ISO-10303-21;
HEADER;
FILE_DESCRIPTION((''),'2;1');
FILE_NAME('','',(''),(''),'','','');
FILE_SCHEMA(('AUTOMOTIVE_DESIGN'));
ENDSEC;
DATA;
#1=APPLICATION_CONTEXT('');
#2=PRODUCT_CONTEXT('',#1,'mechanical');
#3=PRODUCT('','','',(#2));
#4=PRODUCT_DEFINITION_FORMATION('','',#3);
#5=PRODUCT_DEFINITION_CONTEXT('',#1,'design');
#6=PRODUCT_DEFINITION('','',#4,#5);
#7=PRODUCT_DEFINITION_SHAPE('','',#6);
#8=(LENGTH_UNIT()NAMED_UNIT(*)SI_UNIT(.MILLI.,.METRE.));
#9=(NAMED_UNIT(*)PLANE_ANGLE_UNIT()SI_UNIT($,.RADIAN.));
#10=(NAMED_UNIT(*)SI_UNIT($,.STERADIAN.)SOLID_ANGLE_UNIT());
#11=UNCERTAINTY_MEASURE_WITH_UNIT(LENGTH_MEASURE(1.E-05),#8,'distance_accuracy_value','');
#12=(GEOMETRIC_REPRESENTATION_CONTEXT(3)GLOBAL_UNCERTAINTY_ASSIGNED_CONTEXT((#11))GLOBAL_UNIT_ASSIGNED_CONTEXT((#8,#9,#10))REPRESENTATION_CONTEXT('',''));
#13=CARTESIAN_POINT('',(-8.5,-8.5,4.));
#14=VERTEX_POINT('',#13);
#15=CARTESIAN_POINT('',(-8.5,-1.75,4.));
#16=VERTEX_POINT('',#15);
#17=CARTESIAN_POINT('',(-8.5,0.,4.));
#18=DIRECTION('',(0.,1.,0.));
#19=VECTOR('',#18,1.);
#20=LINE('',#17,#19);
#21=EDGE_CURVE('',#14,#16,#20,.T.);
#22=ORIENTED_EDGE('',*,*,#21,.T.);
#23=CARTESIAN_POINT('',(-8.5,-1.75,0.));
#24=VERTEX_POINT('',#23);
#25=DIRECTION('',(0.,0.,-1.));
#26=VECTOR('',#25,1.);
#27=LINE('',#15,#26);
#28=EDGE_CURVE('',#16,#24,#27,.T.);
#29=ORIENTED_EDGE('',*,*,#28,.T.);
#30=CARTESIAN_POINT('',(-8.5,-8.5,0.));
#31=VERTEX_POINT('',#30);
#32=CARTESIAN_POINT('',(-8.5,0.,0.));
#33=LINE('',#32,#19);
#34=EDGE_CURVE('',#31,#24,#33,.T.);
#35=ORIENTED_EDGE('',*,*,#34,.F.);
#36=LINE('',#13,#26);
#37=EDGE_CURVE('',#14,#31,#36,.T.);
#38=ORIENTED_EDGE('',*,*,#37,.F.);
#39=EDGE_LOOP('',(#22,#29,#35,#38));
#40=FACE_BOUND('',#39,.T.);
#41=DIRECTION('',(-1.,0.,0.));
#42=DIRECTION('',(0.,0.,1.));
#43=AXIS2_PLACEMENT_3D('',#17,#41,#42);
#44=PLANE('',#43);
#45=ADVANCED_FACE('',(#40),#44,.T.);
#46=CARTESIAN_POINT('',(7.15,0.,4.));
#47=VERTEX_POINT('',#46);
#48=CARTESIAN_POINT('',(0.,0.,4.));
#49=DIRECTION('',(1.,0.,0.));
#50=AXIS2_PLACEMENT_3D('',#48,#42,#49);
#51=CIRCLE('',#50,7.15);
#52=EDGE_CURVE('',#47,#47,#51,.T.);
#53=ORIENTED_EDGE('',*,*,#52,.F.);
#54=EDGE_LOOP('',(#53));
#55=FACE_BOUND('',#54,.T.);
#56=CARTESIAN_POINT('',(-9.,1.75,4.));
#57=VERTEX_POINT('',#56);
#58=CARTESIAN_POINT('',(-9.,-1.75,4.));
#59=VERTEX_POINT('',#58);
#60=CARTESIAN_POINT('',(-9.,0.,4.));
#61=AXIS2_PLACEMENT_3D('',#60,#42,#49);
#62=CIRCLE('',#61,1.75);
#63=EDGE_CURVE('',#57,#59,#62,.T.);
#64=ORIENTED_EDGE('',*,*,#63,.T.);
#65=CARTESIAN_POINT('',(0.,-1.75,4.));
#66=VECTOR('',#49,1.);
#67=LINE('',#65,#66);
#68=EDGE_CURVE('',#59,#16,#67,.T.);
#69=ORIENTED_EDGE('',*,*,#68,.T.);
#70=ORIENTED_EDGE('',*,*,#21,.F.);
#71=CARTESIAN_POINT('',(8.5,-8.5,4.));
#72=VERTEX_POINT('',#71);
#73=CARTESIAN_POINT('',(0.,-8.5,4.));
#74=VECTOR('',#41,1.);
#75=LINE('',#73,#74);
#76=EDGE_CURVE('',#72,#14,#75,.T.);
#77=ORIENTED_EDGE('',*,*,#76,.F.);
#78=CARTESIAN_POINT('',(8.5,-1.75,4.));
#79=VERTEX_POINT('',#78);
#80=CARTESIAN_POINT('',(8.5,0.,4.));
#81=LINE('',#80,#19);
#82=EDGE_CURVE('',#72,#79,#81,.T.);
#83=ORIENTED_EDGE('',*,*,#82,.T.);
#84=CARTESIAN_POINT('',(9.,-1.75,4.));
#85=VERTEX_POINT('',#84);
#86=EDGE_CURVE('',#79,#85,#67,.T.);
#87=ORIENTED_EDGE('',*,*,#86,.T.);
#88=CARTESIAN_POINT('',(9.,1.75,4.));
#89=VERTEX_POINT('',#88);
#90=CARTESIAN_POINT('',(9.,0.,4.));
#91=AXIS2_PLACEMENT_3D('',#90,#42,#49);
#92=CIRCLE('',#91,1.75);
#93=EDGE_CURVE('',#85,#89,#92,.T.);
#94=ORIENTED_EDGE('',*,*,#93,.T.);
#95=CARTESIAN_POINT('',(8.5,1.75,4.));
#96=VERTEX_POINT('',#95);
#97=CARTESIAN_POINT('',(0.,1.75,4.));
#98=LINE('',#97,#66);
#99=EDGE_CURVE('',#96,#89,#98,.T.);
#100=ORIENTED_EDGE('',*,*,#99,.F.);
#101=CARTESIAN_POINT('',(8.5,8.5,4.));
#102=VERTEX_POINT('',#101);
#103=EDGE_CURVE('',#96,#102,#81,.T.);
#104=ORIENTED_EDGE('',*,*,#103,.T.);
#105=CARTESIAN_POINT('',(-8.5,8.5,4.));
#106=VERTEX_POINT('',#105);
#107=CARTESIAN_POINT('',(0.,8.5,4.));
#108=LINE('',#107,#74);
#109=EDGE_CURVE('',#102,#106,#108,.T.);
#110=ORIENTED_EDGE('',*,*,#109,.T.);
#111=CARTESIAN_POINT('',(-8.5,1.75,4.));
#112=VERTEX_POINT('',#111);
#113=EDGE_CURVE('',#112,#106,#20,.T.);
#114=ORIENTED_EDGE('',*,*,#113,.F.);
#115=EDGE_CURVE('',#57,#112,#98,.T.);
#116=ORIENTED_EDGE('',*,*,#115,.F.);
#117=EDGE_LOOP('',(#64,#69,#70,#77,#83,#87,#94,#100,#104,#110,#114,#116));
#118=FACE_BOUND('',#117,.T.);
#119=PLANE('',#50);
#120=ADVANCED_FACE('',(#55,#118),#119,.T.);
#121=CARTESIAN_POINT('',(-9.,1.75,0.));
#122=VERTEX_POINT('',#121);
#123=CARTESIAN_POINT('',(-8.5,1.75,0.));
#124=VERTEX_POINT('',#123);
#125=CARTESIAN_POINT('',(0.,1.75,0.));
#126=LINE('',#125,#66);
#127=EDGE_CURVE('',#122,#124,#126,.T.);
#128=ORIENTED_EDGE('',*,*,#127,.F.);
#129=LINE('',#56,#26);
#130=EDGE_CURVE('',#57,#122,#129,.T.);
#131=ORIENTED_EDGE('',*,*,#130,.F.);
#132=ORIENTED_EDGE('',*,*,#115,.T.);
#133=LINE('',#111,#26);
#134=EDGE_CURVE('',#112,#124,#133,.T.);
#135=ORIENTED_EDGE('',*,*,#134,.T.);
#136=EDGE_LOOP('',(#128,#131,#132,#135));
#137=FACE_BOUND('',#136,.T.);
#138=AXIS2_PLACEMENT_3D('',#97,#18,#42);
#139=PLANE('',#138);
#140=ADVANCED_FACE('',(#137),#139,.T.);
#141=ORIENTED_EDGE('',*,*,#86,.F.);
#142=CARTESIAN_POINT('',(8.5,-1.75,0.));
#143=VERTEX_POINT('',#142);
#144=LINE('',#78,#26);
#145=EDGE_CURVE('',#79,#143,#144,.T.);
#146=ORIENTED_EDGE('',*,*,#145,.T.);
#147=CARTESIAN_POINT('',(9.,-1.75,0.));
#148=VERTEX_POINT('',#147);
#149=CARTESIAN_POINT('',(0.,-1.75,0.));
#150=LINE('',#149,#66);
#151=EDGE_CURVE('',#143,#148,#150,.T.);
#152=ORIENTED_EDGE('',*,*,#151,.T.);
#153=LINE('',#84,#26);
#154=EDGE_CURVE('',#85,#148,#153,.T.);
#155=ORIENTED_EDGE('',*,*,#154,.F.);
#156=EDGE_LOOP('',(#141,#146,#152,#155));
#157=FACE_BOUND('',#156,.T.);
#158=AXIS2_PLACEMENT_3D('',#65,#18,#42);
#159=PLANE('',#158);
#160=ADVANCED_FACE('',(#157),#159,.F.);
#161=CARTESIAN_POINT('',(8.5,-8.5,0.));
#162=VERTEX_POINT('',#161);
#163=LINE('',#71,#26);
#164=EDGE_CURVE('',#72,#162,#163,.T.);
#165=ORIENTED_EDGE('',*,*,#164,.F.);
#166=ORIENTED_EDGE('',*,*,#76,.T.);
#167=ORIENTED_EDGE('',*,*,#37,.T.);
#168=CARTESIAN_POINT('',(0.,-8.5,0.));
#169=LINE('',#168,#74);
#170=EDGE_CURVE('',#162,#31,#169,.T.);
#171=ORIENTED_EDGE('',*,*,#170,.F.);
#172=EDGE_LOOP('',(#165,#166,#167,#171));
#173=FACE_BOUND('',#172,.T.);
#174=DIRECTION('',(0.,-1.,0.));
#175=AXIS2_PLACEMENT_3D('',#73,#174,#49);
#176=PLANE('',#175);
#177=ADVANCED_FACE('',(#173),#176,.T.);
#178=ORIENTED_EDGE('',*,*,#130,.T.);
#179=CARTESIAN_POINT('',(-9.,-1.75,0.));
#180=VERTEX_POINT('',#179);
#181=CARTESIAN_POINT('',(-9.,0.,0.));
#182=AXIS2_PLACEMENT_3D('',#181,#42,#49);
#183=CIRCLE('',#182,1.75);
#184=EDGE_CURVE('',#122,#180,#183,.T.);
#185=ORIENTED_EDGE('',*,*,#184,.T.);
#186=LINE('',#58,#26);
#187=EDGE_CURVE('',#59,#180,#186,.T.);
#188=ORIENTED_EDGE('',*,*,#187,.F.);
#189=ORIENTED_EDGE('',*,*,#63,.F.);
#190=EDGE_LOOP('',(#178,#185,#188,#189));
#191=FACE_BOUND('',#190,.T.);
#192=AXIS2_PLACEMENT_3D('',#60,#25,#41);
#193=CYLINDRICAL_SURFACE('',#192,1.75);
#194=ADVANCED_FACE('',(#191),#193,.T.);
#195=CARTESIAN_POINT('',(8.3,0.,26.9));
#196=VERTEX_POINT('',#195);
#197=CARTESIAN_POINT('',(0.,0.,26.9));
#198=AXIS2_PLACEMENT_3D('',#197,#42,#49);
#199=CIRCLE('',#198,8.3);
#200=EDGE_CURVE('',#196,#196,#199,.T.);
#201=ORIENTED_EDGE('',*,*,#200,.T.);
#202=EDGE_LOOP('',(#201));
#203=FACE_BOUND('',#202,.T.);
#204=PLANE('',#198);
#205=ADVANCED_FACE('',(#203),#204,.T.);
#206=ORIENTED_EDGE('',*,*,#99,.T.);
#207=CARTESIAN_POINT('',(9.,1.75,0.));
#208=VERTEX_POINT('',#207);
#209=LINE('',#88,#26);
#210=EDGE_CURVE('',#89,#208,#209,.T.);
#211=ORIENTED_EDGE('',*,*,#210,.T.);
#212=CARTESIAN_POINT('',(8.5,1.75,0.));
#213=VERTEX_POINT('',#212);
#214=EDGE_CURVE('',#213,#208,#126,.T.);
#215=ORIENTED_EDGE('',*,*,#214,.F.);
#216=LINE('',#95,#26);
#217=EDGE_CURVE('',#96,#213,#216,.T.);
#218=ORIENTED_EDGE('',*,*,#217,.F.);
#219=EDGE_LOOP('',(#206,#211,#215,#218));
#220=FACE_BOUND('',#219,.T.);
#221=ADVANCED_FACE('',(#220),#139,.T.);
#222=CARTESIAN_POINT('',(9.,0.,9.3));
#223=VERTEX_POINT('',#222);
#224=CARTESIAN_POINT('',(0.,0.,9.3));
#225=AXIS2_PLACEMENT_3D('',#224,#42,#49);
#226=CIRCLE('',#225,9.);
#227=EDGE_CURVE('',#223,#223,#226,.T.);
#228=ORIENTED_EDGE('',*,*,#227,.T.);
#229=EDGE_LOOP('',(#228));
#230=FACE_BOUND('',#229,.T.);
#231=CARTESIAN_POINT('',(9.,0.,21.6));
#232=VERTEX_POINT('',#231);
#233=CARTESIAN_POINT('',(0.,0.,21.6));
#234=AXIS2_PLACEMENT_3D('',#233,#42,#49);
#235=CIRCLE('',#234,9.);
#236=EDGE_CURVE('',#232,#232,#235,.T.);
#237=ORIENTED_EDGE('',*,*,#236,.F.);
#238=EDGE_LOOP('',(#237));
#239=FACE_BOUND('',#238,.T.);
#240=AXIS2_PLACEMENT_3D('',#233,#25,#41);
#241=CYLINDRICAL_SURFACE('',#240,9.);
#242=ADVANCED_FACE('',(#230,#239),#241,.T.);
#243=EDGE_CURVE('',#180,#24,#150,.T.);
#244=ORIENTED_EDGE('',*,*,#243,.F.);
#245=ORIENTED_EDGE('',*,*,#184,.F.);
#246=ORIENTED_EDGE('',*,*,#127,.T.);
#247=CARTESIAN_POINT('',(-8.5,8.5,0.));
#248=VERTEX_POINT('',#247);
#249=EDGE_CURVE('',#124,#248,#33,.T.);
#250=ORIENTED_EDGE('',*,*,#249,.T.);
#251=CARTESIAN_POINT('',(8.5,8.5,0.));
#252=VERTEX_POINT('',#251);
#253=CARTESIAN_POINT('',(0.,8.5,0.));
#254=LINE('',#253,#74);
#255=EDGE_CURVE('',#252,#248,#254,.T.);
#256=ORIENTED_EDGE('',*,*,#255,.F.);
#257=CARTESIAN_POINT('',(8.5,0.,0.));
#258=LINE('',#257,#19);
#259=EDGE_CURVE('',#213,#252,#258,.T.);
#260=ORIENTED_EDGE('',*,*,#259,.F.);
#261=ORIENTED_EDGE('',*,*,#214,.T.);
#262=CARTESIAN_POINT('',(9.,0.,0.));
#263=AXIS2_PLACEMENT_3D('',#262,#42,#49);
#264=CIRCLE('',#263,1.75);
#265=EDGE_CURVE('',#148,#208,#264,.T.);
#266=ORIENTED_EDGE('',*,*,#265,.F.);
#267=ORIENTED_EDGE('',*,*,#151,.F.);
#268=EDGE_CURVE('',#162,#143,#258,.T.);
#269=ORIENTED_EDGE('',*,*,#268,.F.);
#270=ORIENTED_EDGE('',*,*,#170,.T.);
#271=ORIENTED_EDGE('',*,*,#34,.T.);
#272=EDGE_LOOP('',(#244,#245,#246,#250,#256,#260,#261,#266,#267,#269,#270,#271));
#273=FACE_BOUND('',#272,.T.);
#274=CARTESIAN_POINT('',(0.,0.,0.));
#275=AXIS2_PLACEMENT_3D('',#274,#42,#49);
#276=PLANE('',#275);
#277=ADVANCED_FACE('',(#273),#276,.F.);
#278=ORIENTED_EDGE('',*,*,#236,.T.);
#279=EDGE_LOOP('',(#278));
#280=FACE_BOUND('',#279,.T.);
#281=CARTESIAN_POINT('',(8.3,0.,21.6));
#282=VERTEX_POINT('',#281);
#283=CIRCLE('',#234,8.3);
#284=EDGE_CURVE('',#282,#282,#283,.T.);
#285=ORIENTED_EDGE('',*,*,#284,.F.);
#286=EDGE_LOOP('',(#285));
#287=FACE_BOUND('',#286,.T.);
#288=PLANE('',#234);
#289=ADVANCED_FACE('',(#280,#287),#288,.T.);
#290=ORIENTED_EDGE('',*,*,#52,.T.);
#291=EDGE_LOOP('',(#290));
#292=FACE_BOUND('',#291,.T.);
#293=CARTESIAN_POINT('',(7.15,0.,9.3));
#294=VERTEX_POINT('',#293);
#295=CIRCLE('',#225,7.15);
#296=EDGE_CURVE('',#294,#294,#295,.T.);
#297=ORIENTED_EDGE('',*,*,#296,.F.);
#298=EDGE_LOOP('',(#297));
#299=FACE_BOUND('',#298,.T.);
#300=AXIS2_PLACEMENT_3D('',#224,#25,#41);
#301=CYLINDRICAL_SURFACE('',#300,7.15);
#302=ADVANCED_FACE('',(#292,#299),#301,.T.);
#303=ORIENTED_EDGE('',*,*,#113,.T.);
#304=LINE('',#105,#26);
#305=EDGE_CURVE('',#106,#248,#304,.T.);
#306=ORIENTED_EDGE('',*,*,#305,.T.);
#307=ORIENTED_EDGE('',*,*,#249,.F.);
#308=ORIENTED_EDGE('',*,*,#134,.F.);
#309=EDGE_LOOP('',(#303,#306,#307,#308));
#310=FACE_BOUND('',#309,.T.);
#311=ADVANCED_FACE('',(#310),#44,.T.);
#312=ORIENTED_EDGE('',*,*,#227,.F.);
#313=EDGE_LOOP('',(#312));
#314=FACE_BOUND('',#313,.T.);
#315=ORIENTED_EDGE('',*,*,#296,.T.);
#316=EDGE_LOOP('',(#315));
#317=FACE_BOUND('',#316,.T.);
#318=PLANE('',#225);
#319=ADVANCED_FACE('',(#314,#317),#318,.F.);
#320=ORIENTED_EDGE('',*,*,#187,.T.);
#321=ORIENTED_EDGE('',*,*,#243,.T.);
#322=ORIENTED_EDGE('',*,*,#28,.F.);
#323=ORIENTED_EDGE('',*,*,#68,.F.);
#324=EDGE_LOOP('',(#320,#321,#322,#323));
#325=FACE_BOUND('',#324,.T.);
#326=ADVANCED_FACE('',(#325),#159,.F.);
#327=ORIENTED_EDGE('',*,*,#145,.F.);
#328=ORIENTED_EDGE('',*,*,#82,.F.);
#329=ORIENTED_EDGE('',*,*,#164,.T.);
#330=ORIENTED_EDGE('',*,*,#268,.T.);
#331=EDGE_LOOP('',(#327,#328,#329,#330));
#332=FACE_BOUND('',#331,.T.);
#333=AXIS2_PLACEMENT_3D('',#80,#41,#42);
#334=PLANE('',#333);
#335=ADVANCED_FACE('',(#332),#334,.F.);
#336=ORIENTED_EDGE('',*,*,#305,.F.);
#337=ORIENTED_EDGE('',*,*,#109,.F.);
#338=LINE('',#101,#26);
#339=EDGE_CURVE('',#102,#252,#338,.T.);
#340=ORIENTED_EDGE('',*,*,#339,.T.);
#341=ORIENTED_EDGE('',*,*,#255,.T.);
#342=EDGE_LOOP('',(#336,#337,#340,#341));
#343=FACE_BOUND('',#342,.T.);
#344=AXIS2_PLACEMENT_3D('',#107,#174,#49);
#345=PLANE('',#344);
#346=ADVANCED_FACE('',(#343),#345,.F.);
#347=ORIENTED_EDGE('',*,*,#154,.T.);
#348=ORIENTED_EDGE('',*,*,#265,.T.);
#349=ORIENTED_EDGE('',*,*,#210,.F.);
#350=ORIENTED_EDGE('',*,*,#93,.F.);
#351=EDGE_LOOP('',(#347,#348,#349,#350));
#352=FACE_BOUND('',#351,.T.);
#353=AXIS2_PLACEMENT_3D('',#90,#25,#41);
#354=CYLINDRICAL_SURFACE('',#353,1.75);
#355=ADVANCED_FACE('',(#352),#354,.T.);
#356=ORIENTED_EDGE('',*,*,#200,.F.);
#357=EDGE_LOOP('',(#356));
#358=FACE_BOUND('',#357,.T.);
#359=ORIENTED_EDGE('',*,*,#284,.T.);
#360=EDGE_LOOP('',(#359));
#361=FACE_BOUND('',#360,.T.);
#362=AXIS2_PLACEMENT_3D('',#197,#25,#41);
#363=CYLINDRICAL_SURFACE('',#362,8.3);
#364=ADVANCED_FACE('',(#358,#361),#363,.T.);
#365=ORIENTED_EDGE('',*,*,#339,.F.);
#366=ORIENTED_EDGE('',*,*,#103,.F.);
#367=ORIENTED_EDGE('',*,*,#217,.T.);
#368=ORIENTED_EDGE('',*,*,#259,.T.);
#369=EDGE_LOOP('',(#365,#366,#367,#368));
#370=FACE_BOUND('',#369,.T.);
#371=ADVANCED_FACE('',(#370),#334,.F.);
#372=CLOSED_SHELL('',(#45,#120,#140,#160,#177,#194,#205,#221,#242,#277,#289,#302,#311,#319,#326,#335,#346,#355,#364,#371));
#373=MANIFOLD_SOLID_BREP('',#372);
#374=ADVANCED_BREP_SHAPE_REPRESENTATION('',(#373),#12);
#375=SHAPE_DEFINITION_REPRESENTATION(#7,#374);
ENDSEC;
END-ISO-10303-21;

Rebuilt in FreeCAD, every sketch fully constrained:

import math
import FreeCAD as App
import Part
import Sketcher

V = App.Vector
Q = App.Units.Quantity

doc = App.newDocument("Part")
body = doc.addObject("PartDesign::Body", "Body")

# Sketch on XY plane
sketch1 = body.newObject("Sketcher::SketchObject", "Sketch")
sketch1.AttachmentSupport = (doc.getObject("XY_Plane"), [""])
sketch1.MapMode = "FlatFace"
sketch1.addGeometry([
    Part.LineSegment(V(8.5, 8.5, 0), V(-8.5, 8.5, 0)),  # 0
    Part.LineSegment(V(-8.5, 8.5, 0), V(-8.5, 1.8, 0)),  # 1
    Part.LineSegment(V(-8.5, 1.8, 0), V(-9, 1.8, 0)),  # 2
    Part.ArcOfCircle(Part.Circle(V(-9, 0, 0), V(0, 0, 1), 1.8), math.radians(90), math.radians(270)),  # 3
    Part.LineSegment(V(-9, -1.8, 0), V(-8.5, -1.8, 0)),  # 4
    Part.LineSegment(V(-8.5, -1.8, 0), V(-8.5, -8.5, 0)),  # 5
    Part.LineSegment(V(-8.5, -8.5, 0), V(8.5, -8.5, 0)),  # 6
    Part.LineSegment(V(8.5, -8.5, 0), V(8.5, -1.8, 0)),  # 7
    Part.LineSegment(V(8.5, -1.8, 0), V(9, -1.8, 0)),  # 8
    Part.ArcOfCircle(Part.Circle(V(9, 0, 0), V(0, 0, 1), 1.8), math.radians(-90), math.radians(90)),  # 9
    Part.LineSegment(V(9, 1.8, 0), V(8.5, 1.8, 0)),  # 10
    Part.LineSegment(V(8.5, 1.8, 0), V(8.5, 8.5, 0)),  # 11
], False)
sketch1.addConstraint([
    Sketcher.Constraint("Coincident", 0, 2, 1, 1),
    Sketcher.Constraint("Coincident", 1, 2, 2, 1),
    Sketcher.Constraint("Tangent", 2, 2, 3, 1),
    Sketcher.Constraint("Tangent", 3, 2, 4, 1),
    Sketcher.Constraint("Coincident", 4, 2, 5, 1),
    Sketcher.Constraint("Coincident", 5, 2, 6, 1),
    Sketcher.Constraint("Coincident", 6, 2, 7, 1),
    Sketcher.Constraint("Coincident", 7, 2, 8, 1),
    Sketcher.Constraint("Tangent", 8, 2, 9, 1),
    Sketcher.Constraint("Tangent", 9, 2, 10, 1),
    Sketcher.Constraint("Coincident", 10, 2, 11, 1),
    Sketcher.Constraint("Coincident", 11, 2, 0, 1),
    Sketcher.Constraint("Horizontal", 0),
    Sketcher.Constraint("Vertical", 1),
    Sketcher.Constraint("Horizontal", 2),
    Sketcher.Constraint("Horizontal", 4),
    Sketcher.Constraint("Vertical", 5),
    Sketcher.Constraint("Horizontal", 6),
    Sketcher.Constraint("Vertical", 7),
    Sketcher.Constraint("Horizontal", 8),
    Sketcher.Constraint("Horizontal", 10),
    Sketcher.Constraint("Vertical", 11),
    Sketcher.Constraint("Equal", 3, 9),
    Sketcher.Constraint("Symmetric", 3, 3, 9, 3, -1, 1),
    Sketcher.Constraint("Symmetric", 0, 2, 6, 2, -1, 1),
    Sketcher.Constraint("Symmetric", 4, 2, 7, 2, -2),
    Sketcher.Constraint("Vertical", 7, 2, 10, 2),
    Sketcher.Constraint("DistanceX", 0, 2, 0, 1, Q("17 mm")),
    Sketcher.Constraint("Radius", 3, Q("1.75 mm")),
    Sketcher.Constraint("DistanceX", 2, 2, 2, 1, Q("0.5 mm")),
    Sketcher.Constraint("DistanceY", 1, 2, 1, 1, Q("6.75 mm")),
])
pad1 = body.newObject("PartDesign::Pad", "Pad")
pad1.Profile = sketch1
pad1.Length = 4

# Sketch on XY plane
sketch2 = body.newObject("Sketcher::SketchObject", "Sketch001")
sketch2.AttachmentSupport = (doc.getObject("XY_Plane"), [""])
sketch2.MapMode = "FlatFace"
sketch2.AttachmentOffset = App.Placement(V(0, 0, 4), App.Rotation())
sketch2.addGeometry(Part.Circle(V(0, 0, 0), V(0, 0, 1), 7), False)
sketch2.addConstraint([
    Sketcher.Constraint("Coincident", 0, 3, -1, 1),
    Sketcher.Constraint("Diameter", 0, Q("14.3 mm")),
])
pad2 = body.newObject("PartDesign::Pad", "Pad001")
pad2.Profile = sketch2
pad2.Length = 5.3

# Sketch on XY plane
sketch3 = body.newObject("Sketcher::SketchObject", "Sketch002")
sketch3.AttachmentSupport = (doc.getObject("XY_Plane"), [""])
sketch3.MapMode = "FlatFace"
sketch3.AttachmentOffset = App.Placement(V(0, 0, 9.3), App.Rotation())
sketch3.addGeometry(Part.Circle(V(0, 0, 0), V(0, 0, 1), 9), False)
sketch3.addConstraint([
    Sketcher.Constraint("Coincident", 0, 3, -1, 1),
    Sketcher.Constraint("Diameter", 0, Q("18 mm")),
])
pad3 = body.newObject("PartDesign::Pad", "Pad002")
pad3.Profile = sketch3
pad3.Length = 12.3

# Sketch on XY plane
sketch4 = body.newObject("Sketcher::SketchObject", "Sketch003")
sketch4.AttachmentSupport = (doc.getObject("XY_Plane"), [""])
sketch4.MapMode = "FlatFace"
sketch4.AttachmentOffset = App.Placement(V(0, 0, 21.6), App.Rotation())
sketch4.addGeometry(Part.Circle(V(0, 0, 0), V(0, 0, 1), 8), False)
sketch4.addConstraint([
    Sketcher.Constraint("Coincident", 0, 3, -1, 1),
    Sketcher.Constraint("Diameter", 0, Q("16.6 mm")),
])
pad4 = body.newObject("PartDesign::Pad", "Pad003")
pad4.Profile = sketch4
pad4.Length = 5.3

doc.recompute()
